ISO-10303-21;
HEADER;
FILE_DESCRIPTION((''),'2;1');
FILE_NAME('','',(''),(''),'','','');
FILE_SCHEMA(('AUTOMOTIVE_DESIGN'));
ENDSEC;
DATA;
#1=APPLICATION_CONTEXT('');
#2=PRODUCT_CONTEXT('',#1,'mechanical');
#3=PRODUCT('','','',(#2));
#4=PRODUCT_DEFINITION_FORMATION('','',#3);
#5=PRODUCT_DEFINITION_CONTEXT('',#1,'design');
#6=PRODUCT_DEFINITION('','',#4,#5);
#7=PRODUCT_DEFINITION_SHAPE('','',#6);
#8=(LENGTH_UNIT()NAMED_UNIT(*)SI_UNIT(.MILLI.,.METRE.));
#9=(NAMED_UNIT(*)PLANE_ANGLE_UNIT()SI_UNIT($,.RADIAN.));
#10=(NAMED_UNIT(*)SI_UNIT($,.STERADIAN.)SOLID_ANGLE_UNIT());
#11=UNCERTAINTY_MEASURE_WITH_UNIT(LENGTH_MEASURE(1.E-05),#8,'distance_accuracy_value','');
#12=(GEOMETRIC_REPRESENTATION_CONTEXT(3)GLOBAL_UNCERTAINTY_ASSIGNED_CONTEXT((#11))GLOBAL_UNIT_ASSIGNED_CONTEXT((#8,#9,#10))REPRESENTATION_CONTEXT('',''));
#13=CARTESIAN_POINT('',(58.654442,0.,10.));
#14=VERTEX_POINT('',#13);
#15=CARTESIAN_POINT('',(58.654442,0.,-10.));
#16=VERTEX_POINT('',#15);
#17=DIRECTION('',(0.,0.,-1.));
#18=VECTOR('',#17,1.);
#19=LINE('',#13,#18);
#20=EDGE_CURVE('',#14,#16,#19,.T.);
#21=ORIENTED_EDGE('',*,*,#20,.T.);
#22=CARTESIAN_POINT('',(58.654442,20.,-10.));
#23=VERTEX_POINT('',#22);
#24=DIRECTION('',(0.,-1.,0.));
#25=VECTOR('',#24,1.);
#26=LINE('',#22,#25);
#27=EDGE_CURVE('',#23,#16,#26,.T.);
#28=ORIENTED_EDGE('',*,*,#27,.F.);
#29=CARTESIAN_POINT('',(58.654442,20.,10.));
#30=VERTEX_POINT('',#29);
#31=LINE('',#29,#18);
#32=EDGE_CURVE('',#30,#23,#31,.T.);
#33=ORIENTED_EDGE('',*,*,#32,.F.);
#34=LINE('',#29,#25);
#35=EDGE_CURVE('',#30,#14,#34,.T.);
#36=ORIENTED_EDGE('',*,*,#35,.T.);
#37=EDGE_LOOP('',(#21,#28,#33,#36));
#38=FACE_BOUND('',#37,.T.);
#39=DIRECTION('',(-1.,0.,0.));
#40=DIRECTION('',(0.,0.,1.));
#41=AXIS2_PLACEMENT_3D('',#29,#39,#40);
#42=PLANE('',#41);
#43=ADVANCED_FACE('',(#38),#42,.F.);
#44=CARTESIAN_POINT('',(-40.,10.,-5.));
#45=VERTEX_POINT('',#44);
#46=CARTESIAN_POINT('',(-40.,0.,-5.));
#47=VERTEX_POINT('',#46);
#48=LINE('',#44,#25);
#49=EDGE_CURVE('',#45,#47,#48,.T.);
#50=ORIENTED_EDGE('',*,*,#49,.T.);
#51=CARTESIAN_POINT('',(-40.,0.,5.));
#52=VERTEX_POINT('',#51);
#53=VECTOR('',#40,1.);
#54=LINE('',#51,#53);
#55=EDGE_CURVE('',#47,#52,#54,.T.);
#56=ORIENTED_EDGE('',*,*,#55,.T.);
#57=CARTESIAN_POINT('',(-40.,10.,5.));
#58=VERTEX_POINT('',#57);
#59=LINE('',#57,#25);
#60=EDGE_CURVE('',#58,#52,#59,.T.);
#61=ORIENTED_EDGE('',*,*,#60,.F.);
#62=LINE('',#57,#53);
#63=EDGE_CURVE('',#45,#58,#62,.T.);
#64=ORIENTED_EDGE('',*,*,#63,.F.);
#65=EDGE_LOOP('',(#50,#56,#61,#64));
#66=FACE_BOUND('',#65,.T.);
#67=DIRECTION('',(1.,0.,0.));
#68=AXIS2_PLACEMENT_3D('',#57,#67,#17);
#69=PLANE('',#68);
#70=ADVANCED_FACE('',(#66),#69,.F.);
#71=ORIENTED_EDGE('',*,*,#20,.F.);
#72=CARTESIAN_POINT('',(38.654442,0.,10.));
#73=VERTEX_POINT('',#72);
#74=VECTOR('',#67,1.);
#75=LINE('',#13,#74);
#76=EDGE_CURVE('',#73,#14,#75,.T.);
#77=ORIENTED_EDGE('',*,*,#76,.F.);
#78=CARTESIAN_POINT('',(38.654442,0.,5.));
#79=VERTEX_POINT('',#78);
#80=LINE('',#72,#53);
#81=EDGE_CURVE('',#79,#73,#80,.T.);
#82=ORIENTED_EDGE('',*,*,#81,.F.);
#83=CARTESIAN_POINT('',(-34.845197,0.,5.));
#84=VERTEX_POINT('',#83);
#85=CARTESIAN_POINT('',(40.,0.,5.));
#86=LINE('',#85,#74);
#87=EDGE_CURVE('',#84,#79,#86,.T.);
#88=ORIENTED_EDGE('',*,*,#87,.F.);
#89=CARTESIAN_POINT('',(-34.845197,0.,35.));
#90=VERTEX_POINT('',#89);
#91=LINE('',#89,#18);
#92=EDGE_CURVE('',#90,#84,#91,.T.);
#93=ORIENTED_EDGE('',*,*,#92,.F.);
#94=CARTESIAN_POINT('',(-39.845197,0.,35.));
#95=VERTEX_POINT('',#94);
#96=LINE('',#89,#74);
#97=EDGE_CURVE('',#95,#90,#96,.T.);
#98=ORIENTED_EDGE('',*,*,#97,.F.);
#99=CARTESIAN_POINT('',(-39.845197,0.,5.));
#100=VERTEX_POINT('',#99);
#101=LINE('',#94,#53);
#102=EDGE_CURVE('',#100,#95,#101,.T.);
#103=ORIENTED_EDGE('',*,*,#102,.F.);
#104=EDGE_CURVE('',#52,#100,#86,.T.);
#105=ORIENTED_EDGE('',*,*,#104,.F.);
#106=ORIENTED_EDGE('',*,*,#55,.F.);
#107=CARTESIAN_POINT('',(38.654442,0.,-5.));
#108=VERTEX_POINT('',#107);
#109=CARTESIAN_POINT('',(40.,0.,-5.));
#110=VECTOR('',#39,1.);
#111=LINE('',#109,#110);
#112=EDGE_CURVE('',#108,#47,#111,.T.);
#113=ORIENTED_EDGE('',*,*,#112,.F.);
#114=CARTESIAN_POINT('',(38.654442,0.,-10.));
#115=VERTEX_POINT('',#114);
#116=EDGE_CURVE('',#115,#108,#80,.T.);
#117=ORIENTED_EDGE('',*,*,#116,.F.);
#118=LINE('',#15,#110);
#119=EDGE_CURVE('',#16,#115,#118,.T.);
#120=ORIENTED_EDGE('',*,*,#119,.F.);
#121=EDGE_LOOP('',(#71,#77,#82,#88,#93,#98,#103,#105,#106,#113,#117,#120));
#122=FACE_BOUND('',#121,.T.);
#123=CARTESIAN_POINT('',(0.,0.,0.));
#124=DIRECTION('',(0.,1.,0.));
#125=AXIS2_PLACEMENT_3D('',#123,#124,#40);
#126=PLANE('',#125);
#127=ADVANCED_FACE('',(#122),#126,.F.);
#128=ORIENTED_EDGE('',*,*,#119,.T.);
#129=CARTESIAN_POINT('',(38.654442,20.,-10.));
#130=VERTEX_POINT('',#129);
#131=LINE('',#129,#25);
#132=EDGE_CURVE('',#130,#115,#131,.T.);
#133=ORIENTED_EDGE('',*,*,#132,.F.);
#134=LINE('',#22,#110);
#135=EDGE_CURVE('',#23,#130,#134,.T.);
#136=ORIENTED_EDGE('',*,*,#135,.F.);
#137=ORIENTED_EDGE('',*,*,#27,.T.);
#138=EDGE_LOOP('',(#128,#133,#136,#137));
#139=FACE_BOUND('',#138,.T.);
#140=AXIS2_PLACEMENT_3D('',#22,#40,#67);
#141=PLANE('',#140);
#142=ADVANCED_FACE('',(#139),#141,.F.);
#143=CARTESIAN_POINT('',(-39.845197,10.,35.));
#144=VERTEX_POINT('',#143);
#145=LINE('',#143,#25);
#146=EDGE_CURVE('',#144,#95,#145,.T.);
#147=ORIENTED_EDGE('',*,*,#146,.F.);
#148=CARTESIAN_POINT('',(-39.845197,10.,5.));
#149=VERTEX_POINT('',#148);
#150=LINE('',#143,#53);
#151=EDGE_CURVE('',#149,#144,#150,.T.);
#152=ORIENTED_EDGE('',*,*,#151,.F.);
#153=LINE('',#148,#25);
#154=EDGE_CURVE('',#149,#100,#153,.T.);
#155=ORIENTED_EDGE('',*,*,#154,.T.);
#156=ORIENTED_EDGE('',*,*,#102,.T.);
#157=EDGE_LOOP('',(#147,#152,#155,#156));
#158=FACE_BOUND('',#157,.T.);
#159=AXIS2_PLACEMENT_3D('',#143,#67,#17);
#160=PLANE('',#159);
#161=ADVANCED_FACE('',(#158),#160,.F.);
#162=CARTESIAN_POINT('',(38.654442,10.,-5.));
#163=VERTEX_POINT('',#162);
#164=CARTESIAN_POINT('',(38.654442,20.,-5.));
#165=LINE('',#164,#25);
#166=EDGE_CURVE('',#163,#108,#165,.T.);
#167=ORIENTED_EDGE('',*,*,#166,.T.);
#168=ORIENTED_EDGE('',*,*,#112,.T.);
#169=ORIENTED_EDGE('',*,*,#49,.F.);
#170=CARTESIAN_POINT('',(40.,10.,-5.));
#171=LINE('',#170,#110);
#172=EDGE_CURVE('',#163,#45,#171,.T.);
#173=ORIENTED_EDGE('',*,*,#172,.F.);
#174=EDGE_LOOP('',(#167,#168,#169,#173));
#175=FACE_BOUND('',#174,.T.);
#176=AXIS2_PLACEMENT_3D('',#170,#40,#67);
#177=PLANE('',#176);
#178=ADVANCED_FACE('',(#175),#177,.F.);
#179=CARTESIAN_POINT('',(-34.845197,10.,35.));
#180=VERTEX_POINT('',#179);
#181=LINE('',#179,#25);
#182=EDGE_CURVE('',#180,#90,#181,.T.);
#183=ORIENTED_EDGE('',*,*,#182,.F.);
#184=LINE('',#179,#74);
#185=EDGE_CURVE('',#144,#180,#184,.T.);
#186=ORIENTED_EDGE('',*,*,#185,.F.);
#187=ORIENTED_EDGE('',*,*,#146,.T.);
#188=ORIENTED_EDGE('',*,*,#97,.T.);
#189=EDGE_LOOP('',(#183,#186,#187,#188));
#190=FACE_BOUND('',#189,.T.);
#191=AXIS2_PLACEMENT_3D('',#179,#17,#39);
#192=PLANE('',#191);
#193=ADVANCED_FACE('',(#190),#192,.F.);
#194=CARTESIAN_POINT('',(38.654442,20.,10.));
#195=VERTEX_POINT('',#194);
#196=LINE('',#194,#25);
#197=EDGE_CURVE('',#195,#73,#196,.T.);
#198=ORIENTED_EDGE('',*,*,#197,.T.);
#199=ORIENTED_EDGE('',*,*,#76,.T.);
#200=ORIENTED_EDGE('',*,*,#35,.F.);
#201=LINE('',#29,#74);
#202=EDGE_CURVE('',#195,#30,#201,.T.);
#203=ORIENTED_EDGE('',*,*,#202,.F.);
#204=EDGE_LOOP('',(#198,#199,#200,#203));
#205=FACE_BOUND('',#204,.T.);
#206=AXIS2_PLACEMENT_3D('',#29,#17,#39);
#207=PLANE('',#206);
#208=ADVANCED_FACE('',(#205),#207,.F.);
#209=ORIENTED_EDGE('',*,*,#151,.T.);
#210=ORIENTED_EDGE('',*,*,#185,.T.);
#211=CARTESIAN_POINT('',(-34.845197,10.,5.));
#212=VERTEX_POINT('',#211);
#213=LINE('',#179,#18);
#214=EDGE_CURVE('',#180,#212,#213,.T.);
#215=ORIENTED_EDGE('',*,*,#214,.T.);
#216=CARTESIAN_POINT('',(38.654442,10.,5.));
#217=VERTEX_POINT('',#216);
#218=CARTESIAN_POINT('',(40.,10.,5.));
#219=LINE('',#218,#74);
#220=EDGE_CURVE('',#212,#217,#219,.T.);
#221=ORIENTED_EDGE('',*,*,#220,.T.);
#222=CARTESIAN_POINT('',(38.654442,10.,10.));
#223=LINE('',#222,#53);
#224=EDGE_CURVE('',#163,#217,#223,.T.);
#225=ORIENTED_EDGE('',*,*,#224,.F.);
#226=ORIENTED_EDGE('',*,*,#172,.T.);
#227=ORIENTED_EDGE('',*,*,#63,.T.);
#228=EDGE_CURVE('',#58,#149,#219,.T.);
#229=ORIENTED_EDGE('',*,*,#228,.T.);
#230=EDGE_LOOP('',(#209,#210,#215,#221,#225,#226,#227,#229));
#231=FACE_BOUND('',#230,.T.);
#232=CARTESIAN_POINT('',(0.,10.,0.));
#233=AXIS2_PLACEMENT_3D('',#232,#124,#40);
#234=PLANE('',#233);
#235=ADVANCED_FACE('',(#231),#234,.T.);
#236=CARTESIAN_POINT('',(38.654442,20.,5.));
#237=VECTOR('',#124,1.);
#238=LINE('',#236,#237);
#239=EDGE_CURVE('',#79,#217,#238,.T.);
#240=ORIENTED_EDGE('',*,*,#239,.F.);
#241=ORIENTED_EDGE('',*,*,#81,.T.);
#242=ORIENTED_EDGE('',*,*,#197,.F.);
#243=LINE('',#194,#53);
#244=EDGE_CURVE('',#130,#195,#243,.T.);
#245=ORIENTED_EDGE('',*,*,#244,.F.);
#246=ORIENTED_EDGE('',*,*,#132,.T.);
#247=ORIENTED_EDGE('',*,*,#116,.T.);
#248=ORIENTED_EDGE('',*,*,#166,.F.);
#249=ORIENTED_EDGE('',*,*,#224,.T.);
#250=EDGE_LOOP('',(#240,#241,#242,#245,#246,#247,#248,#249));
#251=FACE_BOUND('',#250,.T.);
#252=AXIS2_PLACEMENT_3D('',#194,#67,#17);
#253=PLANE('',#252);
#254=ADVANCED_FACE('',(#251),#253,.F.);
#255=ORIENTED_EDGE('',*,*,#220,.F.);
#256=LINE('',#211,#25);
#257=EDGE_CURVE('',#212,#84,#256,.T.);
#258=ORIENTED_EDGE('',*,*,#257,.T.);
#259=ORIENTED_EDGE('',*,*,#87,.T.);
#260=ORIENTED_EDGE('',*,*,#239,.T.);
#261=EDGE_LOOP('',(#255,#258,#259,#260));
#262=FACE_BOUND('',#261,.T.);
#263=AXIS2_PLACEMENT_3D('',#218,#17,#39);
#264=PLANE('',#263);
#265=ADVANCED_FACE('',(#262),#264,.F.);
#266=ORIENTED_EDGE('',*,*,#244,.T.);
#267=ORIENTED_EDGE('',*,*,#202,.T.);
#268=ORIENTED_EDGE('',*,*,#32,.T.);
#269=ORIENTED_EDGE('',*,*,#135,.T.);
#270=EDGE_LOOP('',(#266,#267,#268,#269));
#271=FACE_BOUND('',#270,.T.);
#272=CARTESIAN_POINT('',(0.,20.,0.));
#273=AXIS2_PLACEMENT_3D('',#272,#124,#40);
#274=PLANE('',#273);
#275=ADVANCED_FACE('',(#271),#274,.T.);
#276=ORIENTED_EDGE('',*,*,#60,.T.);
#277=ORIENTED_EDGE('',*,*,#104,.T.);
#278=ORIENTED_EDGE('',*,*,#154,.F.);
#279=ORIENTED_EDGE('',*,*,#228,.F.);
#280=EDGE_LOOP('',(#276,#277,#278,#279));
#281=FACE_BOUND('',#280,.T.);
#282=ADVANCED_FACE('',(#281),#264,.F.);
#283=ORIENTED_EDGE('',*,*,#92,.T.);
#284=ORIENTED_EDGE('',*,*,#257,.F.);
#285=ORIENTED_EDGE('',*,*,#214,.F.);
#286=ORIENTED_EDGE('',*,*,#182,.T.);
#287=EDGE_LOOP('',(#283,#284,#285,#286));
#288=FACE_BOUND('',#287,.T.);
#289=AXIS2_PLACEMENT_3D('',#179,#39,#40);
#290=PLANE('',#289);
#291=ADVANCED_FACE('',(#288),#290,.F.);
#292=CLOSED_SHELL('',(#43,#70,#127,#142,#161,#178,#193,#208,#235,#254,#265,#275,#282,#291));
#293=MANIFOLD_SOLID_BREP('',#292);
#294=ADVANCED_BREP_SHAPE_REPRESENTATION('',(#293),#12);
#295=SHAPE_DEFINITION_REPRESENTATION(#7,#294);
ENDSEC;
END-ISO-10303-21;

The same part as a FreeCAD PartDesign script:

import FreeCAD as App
import Part
import Sketcher
from FreeCAD import Vector

doc = App.newDocument("Part")
params = doc.addObject("Spreadsheet::Sheet", "Params")
for row, (alias, value) in enumerate([
    ("sketch1_width", "20 mm"),
    ("pad1_length", "20 mm"),
    ("sketch2_width", "80 mm"),
    ("sketch2_height", "10 mm"),
    ("pad2_length", "10 mm"),
    ("sketch3_width", "5 mm"),
    ("sketch3_height", "30 mm"),
    ("pad3_length", "10 mm"),
], start=1):
    params.set(f"A{row}", alias)
    params.set(f"B{row}", "=" + value)
    params.setAlias(f"B{row}", alias)

body = doc.addObject("PartDesign::Body", "Body")

# Sketch on XZ plane
sketch1 = body.newObject("Sketcher::SketchObject", "Sketch")
sketch1.AttachmentSupport = (doc.getObject("XZ_Plane"), [""])
sketch1.MapMode = "FlatFace"
sketch1.addGeometry([
    Part.LineSegment(Vector(38.654442, -10, 0), Vector(38.654442, 10, 0)),
    Part.LineSegment(Vector(38.654442, 10, 0), Vector(58.654442, 10, 0)),
    Part.LineSegment(Vector(58.654442, 10, 0), Vector(58.654442, -10, 0)),
    Part.LineSegment(Vector(58.654442, -10, 0), Vector(38.654442, -10, 0)),
], False)
sketch1.addConstraint([
    Sketcher.Constraint("Coincident", 0, 2, 1, 1),
    Sketcher.Constraint("Coincident", 1, 2, 2, 1),
    Sketcher.Constraint("Coincident", 2, 2, 3, 1),
    Sketcher.Constraint("Coincident", 3, 2, 0, 1),
    Sketcher.Constraint("Vertical", 0),
    Sketcher.Constraint("Horizontal", 1),
    Sketcher.Constraint("Vertical", 2),
    Sketcher.Constraint("Horizontal", 3),
    Sketcher.Constraint("Equal", 3, 0),
    Sketcher.Constraint("DistanceX", 1, 1, 1, 2, 20.0),
    Sketcher.Constraint("DistanceY", -1, 1, 0, 2, 10.0),
    Sketcher.Constraint("DistanceX", -1, 1, 0, 2, 38.654442),
])
sketch1.setExpression("Constraints[9]", "Params.sketch1_width")
pad1 = body.newObject("PartDesign::Pad", "Pad")
pad1.Profile = sketch1
pad1.setExpression("Length", "Params.pad1_length")
pad1.Reversed = True

# Sketch on XZ plane
sketch2 = body.newObject("Sketcher::SketchObject", "Sketch001")
sketch2.AttachmentSupport = (doc.getObject("XZ_Plane"), [""])
sketch2.MapMode = "FlatFace"
sketch2.addGeometry([
    Part.LineSegment(Vector(-40, -5, 0), Vector(-40, 5, 0)),
    Part.LineSegment(Vector(-40, 5, 0), Vector(40, 5, 0)),
    Part.LineSegment(Vector(40, 5, 0), Vector(40, -5, 0)),
    Part.LineSegment(Vector(40, -5, 0), Vector(-40, -5, 0)),
], False)
sketch2.addConstraint([
    Sketcher.Constraint("Coincident", 0, 2, 1, 1),
    Sketcher.Constraint("Coincident", 1, 2, 2, 1),
    Sketcher.Constraint("Coincident", 2, 2, 3, 1),
    Sketcher.Constraint("Coincident", 3, 2, 0, 1),
    Sketcher.Constraint("Vertical", 0),
    Sketcher.Constraint("Horizontal", 1),
    Sketcher.Constraint("Vertical", 2),
    Sketcher.Constraint("Horizontal", 3),
    Sketcher.Constraint("Symmetric", 0, 2, 2, 2, -1, 1),
    Sketcher.Constraint("DistanceX", 1, 1, 1, 2, 80.0),
    Sketcher.Constraint("DistanceY", 0, 1, 0, 2, 10.0),
])
sketch2.setExpression("Constraints[9]", "Params.sketch2_width")
sketch2.setExpression("Constraints[10]", "Params.sketch2_height")
pad2 = body.newObject("PartDesign::Pad", "Pad001")
pad2.Profile = sketch2
pad2.setExpression("Length", "Params.pad2_length")
pad2.Reversed = True

# Sketch on XZ plane
sketch3 = body.newObject("Sketcher::SketchObject", "Sketch002")
sketch3.AttachmentSupport = (doc.getObject("XZ_Plane"), [""])
sketch3.MapMode = "FlatFace"
sketch3.addGeometry([
    Part.LineSegment(Vector(-39.845197, 5, 0), Vector(-39.845197, 35, 0)),
    Part.LineSegment(Vector(-39.845197, 35, 0), Vector(-34.845197, 35, 0)),
    Part.LineSegment(Vector(-34.845197, 35, 0), Vector(-34.845197, 5, 0)),
    Part.LineSegment(Vector(-34.845197, 5, 0), Vector(-39.845197, 5, 0)),
], False)
sketch3.addConstraint([
    Sketcher.Constraint("Coincident", 0, 2, 1, 1),
    Sketcher.Constraint("Coincident", 1, 2, 2, 1),
    Sketcher.Constraint("Coincident", 2, 2, 3, 1),
    Sketcher.Constraint("Coincident", 3, 2, 0, 1),
    Sketcher.Constraint("Vertical", 0),
    Sketcher.Constraint("Horizontal", 1),
    Sketcher.Constraint("Vertical", 2),
    Sketcher.Constraint("Horizontal", 3),
    Sketcher.Constraint("DistanceX", 1, 1, 1, 2, 5.0),
    Sketcher.Constraint("DistanceY", 0, 1, 0, 2, 30.0),
    Sketcher.Constraint("DistanceY", -1, 1, 0, 2, 35.0),
    Sketcher.Constraint("DistanceX", 0, 2, -1, 1, 39.845197),
])
sketch3.setExpression("Constraints[8]", "Params.sketch3_width")
sketch3.setExpression("Constraints[9]", "Params.sketch3_height")
pad3 = body.newObject("PartDesign::Pad", "Pad002")
pad3.Profile = sketch3
pad3.setExpression("Length", "Params.pad3_length")
pad3.Reversed = True

doc.recompute()
